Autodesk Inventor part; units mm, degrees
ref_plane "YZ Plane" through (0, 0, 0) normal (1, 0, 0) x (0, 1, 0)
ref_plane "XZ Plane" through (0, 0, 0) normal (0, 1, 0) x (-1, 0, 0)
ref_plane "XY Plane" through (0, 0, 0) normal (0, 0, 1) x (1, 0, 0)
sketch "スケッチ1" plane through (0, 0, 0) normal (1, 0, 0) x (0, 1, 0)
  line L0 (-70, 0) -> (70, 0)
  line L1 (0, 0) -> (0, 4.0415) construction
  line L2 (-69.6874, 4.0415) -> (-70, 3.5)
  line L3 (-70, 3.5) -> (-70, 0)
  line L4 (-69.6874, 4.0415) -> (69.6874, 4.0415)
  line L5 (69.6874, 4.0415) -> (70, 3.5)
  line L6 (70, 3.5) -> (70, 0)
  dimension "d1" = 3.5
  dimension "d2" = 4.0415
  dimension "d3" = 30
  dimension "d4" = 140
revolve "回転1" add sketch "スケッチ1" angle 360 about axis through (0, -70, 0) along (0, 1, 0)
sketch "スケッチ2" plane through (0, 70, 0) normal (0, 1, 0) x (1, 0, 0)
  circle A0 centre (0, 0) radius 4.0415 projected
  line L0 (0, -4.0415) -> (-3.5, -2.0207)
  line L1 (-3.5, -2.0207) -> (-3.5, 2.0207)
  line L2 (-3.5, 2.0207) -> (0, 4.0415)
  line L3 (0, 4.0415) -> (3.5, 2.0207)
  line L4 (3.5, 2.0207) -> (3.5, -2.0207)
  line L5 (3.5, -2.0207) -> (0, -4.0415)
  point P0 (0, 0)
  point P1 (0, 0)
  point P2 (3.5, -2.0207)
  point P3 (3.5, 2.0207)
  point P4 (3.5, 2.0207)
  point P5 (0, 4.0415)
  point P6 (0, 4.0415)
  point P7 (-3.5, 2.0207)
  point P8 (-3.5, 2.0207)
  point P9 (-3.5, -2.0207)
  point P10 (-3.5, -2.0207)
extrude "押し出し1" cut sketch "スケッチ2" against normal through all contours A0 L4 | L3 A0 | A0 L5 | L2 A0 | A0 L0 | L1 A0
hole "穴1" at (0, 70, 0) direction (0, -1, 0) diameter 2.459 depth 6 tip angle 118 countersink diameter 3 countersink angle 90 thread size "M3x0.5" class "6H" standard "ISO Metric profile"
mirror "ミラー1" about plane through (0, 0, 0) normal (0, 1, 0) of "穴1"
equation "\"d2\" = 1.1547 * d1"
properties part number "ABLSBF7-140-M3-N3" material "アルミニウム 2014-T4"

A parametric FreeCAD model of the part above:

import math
import FreeCAD as App
import Part
import Sketcher

V = App.Vector
Q = App.Units.Quantity


def add_polygon(sketch, points):
    """Adds a closed chain of lines whose ends are joined by coincident constraints."""
    first, n = sketch.GeometryCount, len(points)
    for a, b in zip(points, points[1:] + points[:1]):
        sketch.addGeometry(Part.LineSegment(App.Vector(*a, 0), App.Vector(*b, 0)), False)
    for i in range(n):
        sketch.addConstraint(Sketcher.Constraint("Coincident", first + i, 2, first + (i + 1) % n, 1))

doc = App.newDocument("Part")
body = doc.addObject("PartDesign::Body", "Body")

sketch1 = body.newObject("Sketcher::SketchObject", "Sketch")
sketch1.AttachmentSupport = (doc.getObject("YZ_Plane"), [""])
sketch1.MapMode = "FlatFace"
add_polygon(sketch1, [(-70, 3.5), (-70, 0), (70, 0), (70, 3.5), (69.7, 4), (-69.7, 4)])
sketch1.addConstraint(Sketcher.Constraint("Vertical", 0))
sketch1.addConstraint(Sketcher.Constraint("Horizontal", 1))
sketch1.addConstraint(Sketcher.Constraint("Vertical", 2))
sketch1.addConstraint(Sketcher.Constraint("Horizontal", 4))
sketch1.addConstraint(Sketcher.Constraint("Symmetric", 0, 2, 1, 2, -1, 1))
sketch1.addConstraint(Sketcher.Constraint("Horizontal", 2, 2, 5, 2))
sketch1.addConstraint(Sketcher.Constraint("Equal", 3, 5))
sketch1.addConstraint(Sketcher.Constraint("DistanceX", 1, 1, 1, 2, 140.0))
sketch1.addConstraint(Sketcher.Constraint("DistanceY", 0, 2, 0, 1, 3.5))
sketch1.addConstraint(Sketcher.Constraint("DistanceY", -1, 1, 3, 2, 4.0415))
sketch1.addConstraint(Sketcher.Constraint("DistanceX", 4, 2, 4, 1, 139.3748))
revolution = body.newObject("PartDesign::Revolution", "Revolution")
revolution.Profile = sketch1
revolution.ReferenceAxis = (sketch1, ["H_Axis"])
revolution.Angle = 360

sketch2 = body.newObject("Sketcher::SketchObject", "Sketch001")
sketch2.AttachmentSupport = (doc.getObject("XZ_Plane"), [""])
sketch2.MapMode = "FlatFace"
sketch2.AttachmentOffset = App.Placement(V(0, 0, -70), App.Rotation())
sketch2.addGeometry(Part.ArcOfCircle(Part.Circle(V(0, 0, 0), V(0, 0, 1), 4), math.radians(-30), math.radians(30)), False)
sketch2.addGeometry(Part.LineSegment(V(3.5, 2, 0), V(3.5, -2, 0)), False)
sketch2.addGeometry(Part.LineSegment(V(0, -4, 0), V(3.5, -2, 0)), False)
sketch2.addGeometry(Part.ArcOfCircle(Part.Circle(V(0, 0, 0), V(0, 0, 1), 4), math.radians(-90), math.radians(-30)), False)
sketch2.addGeometry(Part.ArcOfCircle(Part.Circle(V(0, 0, 0), V(0, 0, 1), 4), math.radians(30), math.radians(90)), False)
sketch2.addGeometry(Part.LineSegment(V(0, 4, 0), V(3.5, 2, 0)), False)
sketch2.addGeometry(Part.LineSegment(V(-3.5, -2, 0), V(0, -4, 0)), False)
sketch2.addGeometry(Part.ArcOfCircle(Part.Circle(V(0, 0, 0), V(0, 0, 1), 4), math.radians(-150), math.radians(-90)), False)
sketch2.addGeometry(Part.ArcOfCircle(Part.Circle(V(0, 0, 0), V(0, 0, 1), 4), math.radians(90), math.radians(150)), False)
sketch2.addGeometry(Part.LineSegment(V(0, 4, 0), V(-3.5, 2, 0)), False)
sketch2.addGeometry(Part.LineSegment(V(-3.5, 2, 0), V(-3.5, -2, 0)), False)
sketch2.addGeometry(Part.ArcOfCircle(Part.Circle(V(0, 0, 0), V(0, 0, 1), 4), math.radians(150), math.radians(210)), False)
sketch2.addConstraint(Sketcher.Constraint("Coincident", 0, 1, 1, 2))
sketch2.addConstraint(Sketcher.Constraint("Coincident", 1, 1, 0, 2))
sketch2.addConstraint(Sketcher.Constraint("Coincident", 2, 1, 3, 1))
sketch2.addConstraint(Sketcher.Constraint("Coincident", 3, 2, 2, 2))
sketch2.addConstraint(Sketcher.Constraint("Coincident", 4, 1, 5, 2))
sketch2.addConstraint(Sketcher.Constraint("Coincident", 5, 1, 4, 2))
sketch2.addConstraint(Sketcher.Constraint("Coincident", 6, 1, 7, 1))
sketch2.addConstraint(Sketcher.Constraint("Coincident", 7, 2, 6, 2))
sketch2.addConstraint(Sketcher.Constraint("Coincident", 8, 1, 9, 1))
sketch2.addConstraint(Sketcher.Constraint("Coincident", 9, 2, 8, 2))
sketch2.addConstraint(Sketcher.Constraint("Coincident", 10, 1, 11, 1))
sketch2.addConstraint(Sketcher.Constraint("Coincident", 11, 2, 10, 2))
sketch2.addConstraint(Sketcher.Constraint("Vertical", 1))
sketch2.addConstraint(Sketcher.Constraint("Vertical", 10))
sketch2.addConstraint(Sketcher.Constraint("Coincident", 0, 3, -1, 1))
sketch2.addConstraint(Sketcher.Constraint("Coincident", 3, 3, -1, 1))
sketch2.addConstraint(Sketcher.Constraint("Coincident", 4, 3, -1, 1))
sketch2.addConstraint(Sketcher.Constraint("Coincident", 7, 3, -1, 1))
sketch2.addConstraint(Sketcher.Constraint("Coincident", 8, 3, -1, 1))
sketch2.addConstraint(Sketcher.Constraint("Coincident", 11, 3, -1, 1))
sketch2.addConstraint(Sketcher.Constraint("Coincident", 3, 2, 0, 1))
sketch2.addConstraint(Sketcher.Constraint("Coincident", 4, 1, 1, 1))
sketch2.addConstraint(Sketcher.Constraint("Coincident", 7, 2, 2, 1))
sketch2.addConstraint(Sketcher.Constraint("Coincident", 8, 1, 5, 1))
sketch2.addConstraint(Sketcher.Constraint("Coincident", 10, 1, 9, 2))
sketch2.addConstraint(Sketcher.Constraint("PointOnObject", 2, 1, -2))
sketch2.addConstraint(Sketcher.Constraint("PointOnObject", 5, 1, -2))
sketch2.addConstraint(Sketcher.Constraint("Parallel", 5, 6))
sketch2.addConstraint(Sketcher.Constraint("Parallel", 2, 9))
sketch2.addConstraint(Sketcher.Constraint("Angle", 2, Q("30.001 deg")))
sketch2.addConstraint(Sketcher.Constraint("DistanceX", -1, 1, 0, 1, 3.5))
pocket1 = body.newObject("PartDesign::Pocket", "Pocket")
pocket1.Profile = sketch2
pocket1.Type = "ThroughAll"
pocket1.Reversed = True

sketch3 = body.newObject("Sketcher::SketchObject", "Sketch002")
sketch3.AttachmentSupport = (doc.getObject("XZ_Plane"), [""])
sketch3.MapMode = "FlatFace"
sketch3.AttachmentOffset = App.Placement(V(0, 0, -70), App.Rotation())
sketch3.addGeometry(Part.Circle(V(0, 0, 0), V(0, 0, 1), 1.2), False)
sketch3.addConstraint(Sketcher.Constraint("Coincident", 0, 3, -1, 1))
sketch3.addConstraint(Sketcher.Constraint("Diameter", 0, 2.459))
doc.recompute()
hole = body.newObject("PartDesign::Hole", "Hole")
hole.Profile = sketch3
hole.ThreadType = "None"
hole.Diameter = 2.459
hole.DepthType = "Dimension"
hole.Depth = 6
hole.DrillPoint = "Angled"
hole.DrillPointAngle = 118
hole.HoleCutType = "Countersink"
hole.HoleCutDiameter = 3
hole.HoleCutCountersinkAngle = 90
hole.Reversed = True
doc.recompute()

mirrored = body.newObject("PartDesign::Mirrored", "Mirrored")
mirrored.Originals = [hole]
mirrored.MirrorPlane = (doc.getObject("XZ_Plane"), [""])
body.Tip = mirrored

doc.recompute()
